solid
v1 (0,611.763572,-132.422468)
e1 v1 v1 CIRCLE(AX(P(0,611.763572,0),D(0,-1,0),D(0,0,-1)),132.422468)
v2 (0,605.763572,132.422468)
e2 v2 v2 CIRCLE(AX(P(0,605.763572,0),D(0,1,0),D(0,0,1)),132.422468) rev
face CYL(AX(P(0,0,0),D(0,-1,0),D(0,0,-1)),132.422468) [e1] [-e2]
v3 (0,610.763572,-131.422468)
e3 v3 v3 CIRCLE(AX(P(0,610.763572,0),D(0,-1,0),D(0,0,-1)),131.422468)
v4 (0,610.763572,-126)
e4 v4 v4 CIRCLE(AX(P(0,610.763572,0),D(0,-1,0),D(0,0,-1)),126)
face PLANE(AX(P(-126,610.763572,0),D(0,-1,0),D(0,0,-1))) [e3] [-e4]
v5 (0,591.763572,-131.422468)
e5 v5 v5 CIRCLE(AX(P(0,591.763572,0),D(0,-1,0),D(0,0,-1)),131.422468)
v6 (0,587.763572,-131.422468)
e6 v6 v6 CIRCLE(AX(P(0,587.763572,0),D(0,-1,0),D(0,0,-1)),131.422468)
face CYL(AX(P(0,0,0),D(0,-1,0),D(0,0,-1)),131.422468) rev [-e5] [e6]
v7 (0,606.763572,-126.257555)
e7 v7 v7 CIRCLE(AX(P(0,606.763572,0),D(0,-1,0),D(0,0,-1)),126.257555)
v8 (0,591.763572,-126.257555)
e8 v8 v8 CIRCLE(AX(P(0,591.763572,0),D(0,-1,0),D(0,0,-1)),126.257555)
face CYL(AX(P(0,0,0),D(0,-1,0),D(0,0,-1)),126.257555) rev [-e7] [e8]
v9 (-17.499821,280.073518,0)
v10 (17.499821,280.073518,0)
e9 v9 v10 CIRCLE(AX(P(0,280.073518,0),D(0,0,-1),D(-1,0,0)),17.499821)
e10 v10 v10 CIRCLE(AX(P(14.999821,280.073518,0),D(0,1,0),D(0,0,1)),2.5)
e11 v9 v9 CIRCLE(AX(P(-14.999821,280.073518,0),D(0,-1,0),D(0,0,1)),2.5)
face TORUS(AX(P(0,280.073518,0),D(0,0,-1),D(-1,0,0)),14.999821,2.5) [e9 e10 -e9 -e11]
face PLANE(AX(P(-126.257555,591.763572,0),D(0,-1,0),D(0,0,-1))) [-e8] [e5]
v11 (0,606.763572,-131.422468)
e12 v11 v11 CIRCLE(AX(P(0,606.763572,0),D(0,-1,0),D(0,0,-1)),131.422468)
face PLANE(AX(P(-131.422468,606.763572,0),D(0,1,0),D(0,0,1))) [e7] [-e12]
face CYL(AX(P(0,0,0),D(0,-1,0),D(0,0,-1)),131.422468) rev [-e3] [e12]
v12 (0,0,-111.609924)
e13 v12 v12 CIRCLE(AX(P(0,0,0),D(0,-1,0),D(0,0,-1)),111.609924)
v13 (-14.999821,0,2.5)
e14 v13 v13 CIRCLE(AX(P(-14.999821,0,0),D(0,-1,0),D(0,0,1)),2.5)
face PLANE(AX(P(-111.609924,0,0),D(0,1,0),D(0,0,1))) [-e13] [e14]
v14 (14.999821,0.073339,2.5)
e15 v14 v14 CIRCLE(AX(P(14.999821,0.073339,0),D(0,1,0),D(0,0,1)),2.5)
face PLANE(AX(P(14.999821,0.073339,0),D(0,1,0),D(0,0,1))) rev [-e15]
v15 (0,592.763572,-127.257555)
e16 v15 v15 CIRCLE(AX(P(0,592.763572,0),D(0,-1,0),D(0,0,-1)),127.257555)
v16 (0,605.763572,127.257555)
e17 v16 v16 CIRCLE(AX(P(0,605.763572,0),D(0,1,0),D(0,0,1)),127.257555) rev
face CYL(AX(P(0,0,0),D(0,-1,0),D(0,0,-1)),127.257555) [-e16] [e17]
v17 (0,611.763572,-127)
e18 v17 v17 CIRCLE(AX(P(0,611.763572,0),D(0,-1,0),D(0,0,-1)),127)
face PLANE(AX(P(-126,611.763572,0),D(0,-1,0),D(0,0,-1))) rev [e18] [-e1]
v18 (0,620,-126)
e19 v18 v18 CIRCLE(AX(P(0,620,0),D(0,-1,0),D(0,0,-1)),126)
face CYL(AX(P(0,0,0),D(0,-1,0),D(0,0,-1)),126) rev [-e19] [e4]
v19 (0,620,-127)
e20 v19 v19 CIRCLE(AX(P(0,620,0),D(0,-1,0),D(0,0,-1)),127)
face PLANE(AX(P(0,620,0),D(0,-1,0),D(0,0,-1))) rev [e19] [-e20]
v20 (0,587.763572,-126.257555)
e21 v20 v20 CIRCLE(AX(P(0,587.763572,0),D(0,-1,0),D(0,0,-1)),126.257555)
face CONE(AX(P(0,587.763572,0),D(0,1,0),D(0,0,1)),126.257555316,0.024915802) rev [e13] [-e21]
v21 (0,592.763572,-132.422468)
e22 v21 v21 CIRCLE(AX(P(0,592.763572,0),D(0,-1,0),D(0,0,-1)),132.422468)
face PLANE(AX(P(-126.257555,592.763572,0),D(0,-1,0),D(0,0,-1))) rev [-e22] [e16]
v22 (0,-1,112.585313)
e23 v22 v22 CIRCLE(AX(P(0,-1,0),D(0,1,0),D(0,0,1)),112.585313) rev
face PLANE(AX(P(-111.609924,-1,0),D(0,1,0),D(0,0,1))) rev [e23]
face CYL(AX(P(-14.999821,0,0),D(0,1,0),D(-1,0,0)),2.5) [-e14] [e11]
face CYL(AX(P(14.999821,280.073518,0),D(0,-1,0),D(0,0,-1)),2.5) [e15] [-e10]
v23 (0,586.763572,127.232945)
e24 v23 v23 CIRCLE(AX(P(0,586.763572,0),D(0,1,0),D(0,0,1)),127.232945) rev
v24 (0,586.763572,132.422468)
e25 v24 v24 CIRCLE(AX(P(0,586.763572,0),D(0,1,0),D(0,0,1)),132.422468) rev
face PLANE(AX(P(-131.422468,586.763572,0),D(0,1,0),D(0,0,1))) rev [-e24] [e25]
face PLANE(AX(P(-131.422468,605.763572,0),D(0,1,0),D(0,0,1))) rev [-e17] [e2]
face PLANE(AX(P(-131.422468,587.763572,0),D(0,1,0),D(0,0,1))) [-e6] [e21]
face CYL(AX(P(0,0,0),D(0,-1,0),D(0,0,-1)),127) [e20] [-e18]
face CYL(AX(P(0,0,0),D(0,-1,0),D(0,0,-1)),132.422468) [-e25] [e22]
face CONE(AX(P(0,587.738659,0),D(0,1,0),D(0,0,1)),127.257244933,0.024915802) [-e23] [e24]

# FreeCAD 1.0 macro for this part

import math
import FreeCAD as App
import Part
import Sketcher

V = App.Vector
Q = App.Units.Quantity


def faces_at(feature, points):
    """Names of the faces that lie closest to the given points."""
    faces = feature.Shape.Faces
    near = lambda p: min(range(len(faces)), key=lambda i: faces[i].distToShape(Part.Vertex(*p))[0])
    return sorted({f"Face{near(p) + 1}" for p in points})


def add_polygon(sketch, points):
    """Adds a closed chain of lines whose ends are joined by coincident constraints."""
    first, n = sketch.GeometryCount, len(points)
    for a, b in zip(points, points[1:] + points[:1]):
        sketch.addGeometry(Part.LineSegment(App.Vector(*a, 0), App.Vector(*b, 0)), False)
    for i in range(n):
        sketch.addConstraint(Sketcher.Constraint("Coincident", first + i, 2, first + (i + 1) % n, 1))

doc = App.newDocument("Part")
body = doc.addObject("PartDesign::Body", "Body")

# Sketch on XY plane
sketch1 = doc.addObject("Sketcher::SketchObject", "Sketch")
body.addObject(sketch1)
sketch1.AttachmentSupport = (doc.XY_Plane, [""])
sketch1.MapMode = "FlatFace"
add_polygon(sketch1, [(0, 620), (-126, 620), (-126, 610.8), (-131.4, 610.8), (-131.4, 606.8), (-126.3, 606.8), (-126.3, 591.8), (-131.4, 591.8), (-131.4, 587.8), (-126.3, 587.8), (-111.6, 0), (0, 0)])  # lines 0-11
sketch1.addConstraint([
    Sketcher.Constraint("Horizontal", 0),
    Sketcher.Constraint("Vertical", 1),
    Sketcher.Constraint("Horizontal", 2),
    Sketcher.Constraint("Vertical", 3),
    Sketcher.Constraint("Horizontal", 4),
    Sketcher.Constraint("Vertical", 5),
    Sketcher.Constraint("Horizontal", 6),
    Sketcher.Constraint("Vertical", 7),
    Sketcher.Constraint("Horizontal", 8),
    Sketcher.Constraint("Horizontal", 10),
    Sketcher.Constraint("Vertical", 11),
    Sketcher.Constraint("Coincident", 10, 2, -1, 1),
    Sketcher.Constraint("Vertical", 3, 2, 6, 2),
    Sketcher.Constraint("Vertical", 5, 2, 8, 2),
    Sketcher.Constraint("Equal", 3, 7),
    Sketcher.Constraint("DistanceX", 0, 2, 0, 1, Q("126 mm")),
    Sketcher.Constraint("DistanceY", 3, 2, 3, 1, Q("4 mm")),
    Sketcher.Constraint("DistanceY", 5, 2, 5, 1, Q("15 mm")),
    Sketcher.Constraint("DistanceY", 11, 1, 11, 2, Q("620 mm")),
    Sketcher.Constraint("DistanceX", 2, 2, 2, 1, Q("5.422468 mm")),
    Sketcher.Constraint("DistanceY", 1, 2, 1, 1, Q("9.236428 mm")),
    Sketcher.Constraint("Distance", 9, Q("587.94606 mm")),
    Sketcher.Constraint("DistanceX", 4, 1, 4, 2, Q("5.164913 mm")),
])
revolution = doc.addObject("PartDesign::Revolution", "Revolution")
body.addObject(revolution)
revolution.Profile = sketch1
revolution.ReferenceAxis = (sketch1, ["V_Axis"])
revolution.Angle = 360
doc.recompute()

thickness = doc.addObject("PartDesign::Thickness", "Thickness")
body.addObject(thickness)
thickness.Base = (revolution, faces_at(revolution, [(0, 620, 0)]))
thickness.Value = 1
thickness.Reversed = False
thickness.Join = "Intersection"

# Sketch on XZ plane
sketch2 = doc.addObject("Sketcher::SketchObject", "Sketch001")
body.addObject(sketch2)
sketch2.AttachmentSupport = (doc.XZ_Plane, [""])
sketch2.MapMode = "FlatFace"
sketch2.addGeometry(Part.Circle(V(-15, 0, 0), V(0, 0, 1), 2.5), False)
sketch2.addConstraint([
    Sketcher.Constraint("PointOnObject", 0, 3, -1),
    Sketcher.Constraint("Diameter", 0, Q("5 mm")),
    Sketcher.Constraint("DistanceX", 0, 3, -1, 1, Q("14.999821 mm")),
])

# Sketch on XY plane
sketch3 = doc.addObject("Sketcher::SketchObject", "Sketch002")
body.addObject(sketch3)
sketch3.AttachmentSupport = (doc.XY_Plane, [""])
sketch3.MapMode = "FlatFace"
sketch3.addGeometry([
    Part.LineSegment(V(-15, 0, 0), V(-15, 280, 0)),
    Part.ArcOfCircle(Part.Circle(V(0, 280, 0), V(0, 0, 1), 15), math.radians(0), math.radians(180)),
    Part.LineSegment(V(15, 280, 0), V(15, 0, 0)),
], False)
sketch3.addConstraint([
    Sketcher.Constraint("Tangent", 0, 2, 1, 2),
    Sketcher.Constraint("Tangent", 1, 1, 2, 1),
    Sketcher.Constraint("Vertical", 0),
    Sketcher.Constraint("Vertical", 2),
    Sketcher.Constraint("PointOnObject", 1, 3, -2),
    Sketcher.Constraint("PointOnObject", 0, 1, -1),
    Sketcher.Constraint("Radius", 1, Q("14.999821 mm")),
    Sketcher.Constraint("DistanceY", 0, 1, 0, 2, Q("280.073518 mm")),
    Sketcher.Constraint("DistanceY", 2, 2, 2, 1, Q("280.000179 mm")),
])
doc.recompute()

additivepipe = doc.addObject("PartDesign::AdditivePipe", "AdditivePipe")
body.addObject(additivepipe)
additivepipe.Profile = sketch2
additivepipe.Spine = (sketch3, ["Edge1", "Edge2", "Edge3"])

doc.recompute()
